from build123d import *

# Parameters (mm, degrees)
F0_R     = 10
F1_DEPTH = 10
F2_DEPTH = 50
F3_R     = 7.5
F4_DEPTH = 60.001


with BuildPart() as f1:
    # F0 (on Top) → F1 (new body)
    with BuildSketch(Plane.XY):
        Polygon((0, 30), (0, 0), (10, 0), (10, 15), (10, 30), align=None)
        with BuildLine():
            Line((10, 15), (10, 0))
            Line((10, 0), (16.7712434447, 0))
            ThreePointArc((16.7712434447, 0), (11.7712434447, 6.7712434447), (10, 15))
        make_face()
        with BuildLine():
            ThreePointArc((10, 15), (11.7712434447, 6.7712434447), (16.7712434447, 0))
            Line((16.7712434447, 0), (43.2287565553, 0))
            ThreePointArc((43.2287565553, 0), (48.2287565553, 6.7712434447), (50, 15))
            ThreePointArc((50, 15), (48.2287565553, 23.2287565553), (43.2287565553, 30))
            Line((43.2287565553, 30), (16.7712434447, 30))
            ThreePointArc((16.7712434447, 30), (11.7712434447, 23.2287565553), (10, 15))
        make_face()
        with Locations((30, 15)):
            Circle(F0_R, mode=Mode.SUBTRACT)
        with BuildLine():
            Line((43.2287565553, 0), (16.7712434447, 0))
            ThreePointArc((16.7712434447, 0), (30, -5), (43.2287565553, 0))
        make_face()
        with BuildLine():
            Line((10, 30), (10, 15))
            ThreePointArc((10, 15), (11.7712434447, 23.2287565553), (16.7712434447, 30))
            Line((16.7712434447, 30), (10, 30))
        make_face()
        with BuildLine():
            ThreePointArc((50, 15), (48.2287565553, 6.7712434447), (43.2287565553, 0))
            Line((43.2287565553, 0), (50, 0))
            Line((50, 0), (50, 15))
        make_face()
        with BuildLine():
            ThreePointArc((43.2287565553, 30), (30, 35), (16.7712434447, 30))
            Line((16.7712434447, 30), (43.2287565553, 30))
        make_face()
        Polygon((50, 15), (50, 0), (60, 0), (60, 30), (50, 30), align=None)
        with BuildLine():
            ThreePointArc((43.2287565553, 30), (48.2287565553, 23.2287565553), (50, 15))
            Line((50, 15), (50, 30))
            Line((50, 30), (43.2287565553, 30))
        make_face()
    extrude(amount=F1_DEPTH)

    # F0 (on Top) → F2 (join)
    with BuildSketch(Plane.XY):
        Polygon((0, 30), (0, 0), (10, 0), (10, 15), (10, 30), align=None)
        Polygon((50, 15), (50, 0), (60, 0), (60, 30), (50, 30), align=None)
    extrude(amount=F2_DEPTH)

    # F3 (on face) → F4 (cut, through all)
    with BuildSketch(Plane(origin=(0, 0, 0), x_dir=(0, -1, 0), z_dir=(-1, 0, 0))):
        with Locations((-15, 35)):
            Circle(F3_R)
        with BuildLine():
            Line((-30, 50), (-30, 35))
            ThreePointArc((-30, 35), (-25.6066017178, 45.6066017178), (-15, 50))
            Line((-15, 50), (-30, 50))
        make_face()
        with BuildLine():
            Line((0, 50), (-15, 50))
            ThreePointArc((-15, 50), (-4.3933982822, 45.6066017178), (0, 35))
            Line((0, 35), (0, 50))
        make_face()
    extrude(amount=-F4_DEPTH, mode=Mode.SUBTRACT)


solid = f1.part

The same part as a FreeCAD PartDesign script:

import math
import FreeCAD as App
import Part
import Sketcher

doc = App.newDocument("Part")
body = doc.addObject("PartDesign::Body", "Body")

sketch1 = body.newObject("Sketcher::SketchObject", "Sketch")
sketch1.AttachmentSupport = (doc.getObject("XY_Plane"), [""])
sketch1.MapMode = "FlatFace"
sketch1.addGeometry(Part.LineSegment(App.Vector(0, 30, 0), App.Vector(0, 0, 0)), False)
sketch1.addGeometry(Part.LineSegment(App.Vector(0, 0, 0), App.Vector(17, 0, 0)), False)
sketch1.addGeometry(Part.ArcOfCircle(Part.Circle(App.Vector(30, 15, 0), App.Vector(0, 0, 1), 20), math.radians(-131), math.radians(-49)), False)
sketch1.addGeometry(Part.LineSegment(App.Vector(43, 0, 0), App.Vector(60, 0, 0)), False)
sketch1.addGeometry(Part.LineSegment(App.Vector(60, 0, 0), App.Vector(60, 30, 0)), False)
sketch1.addGeometry(Part.LineSegment(App.Vector(60, 30, 0), App.Vector(43, 30, 0)), False)
sketch1.addGeometry(Part.ArcOfCircle(Part.Circle(App.Vector(30, 15, 0), App.Vector(0, 0, 1), 20), math.radians(49), math.radians(131)), False)
sketch1.addGeometry(Part.LineSegment(App.Vector(17, 30, 0), App.Vector(0, 30, 0)), False)
sketch1.addGeometry(Part.Circle(App.Vector(30, 15, 0), App.Vector(0, 0, 1), 10), False)
sketch1.addConstraint(Sketcher.Constraint("Coincident", 0, 2, 1, 1))
sketch1.addConstraint(Sketcher.Constraint("Coincident", 1, 2, 2, 1))
sketch1.addConstraint(Sketcher.Constraint("Coincident", 2, 2, 3, 1))
sketch1.addConstraint(Sketcher.Constraint("Coincident", 3, 2, 4, 1))
sketch1.addConstraint(Sketcher.Constraint("Coincident", 4, 2, 5, 1))
sketch1.addConstraint(Sketcher.Constraint("Coincident", 5, 2, 6, 1))
sketch1.addConstraint(Sketcher.Constraint("Coincident", 6, 2, 7, 1))
sketch1.addConstraint(Sketcher.Constraint("Coincident", 7, 2, 0, 1))
sketch1.addConstraint(Sketcher.Constraint("Vertical", 0))
sketch1.addConstraint(Sketcher.Constraint("Horizontal", 1))
sketch1.addConstraint(Sketcher.Constraint("Horizontal", 3))
sketch1.addConstraint(Sketcher.Constraint("Vertical", 4))
sketch1.addConstraint(Sketcher.Constraint("Horizontal", 5))
sketch1.addConstraint(Sketcher.Constraint("Horizontal", 7))
sketch1.addConstraint(Sketcher.Constraint("Coincident", 0, 2, -1, 1))
sketch1.addConstraint(Sketcher.Constraint("Coincident", 6, 3, 2, 3))
sketch1.addConstraint(Sketcher.Constraint("Coincident", 8, 3, 2, 3))
sketch1.addConstraint(Sketcher.Constraint("Equal", 2, 6))
sketch1.addConstraint(Sketcher.Constraint("PointOnObject", 2, 2, -1))
sketch1.addConstraint(Sketcher.Constraint("Horizontal", 5, 2, 6, 2))
sketch1.addConstraint(Sketcher.Constraint("Vertical", 2, 2, 5, 2))
sketch1.addConstraint(Sketcher.Constraint("Equal", 1, 3))
sketch1.addConstraint(Sketcher.Constraint("Diameter", 8, 20.0))
sketch1.addConstraint(Sketcher.Constraint("Radius", 2, 20.0))
sketch1.addConstraint(Sketcher.Constraint("DistanceY", 0, 2, 0, 1, 30.0))
sketch1.addConstraint(Sketcher.Constraint("DistanceX", -1, 1, 2, 3, 30.0))
pad1 = body.newObject("PartDesign::Pad", "Pad")
pad1.Profile = sketch1
pad1.Length = 10

sketch2 = body.newObject("Sketcher::SketchObject", "Sketch001")
sketch2.AttachmentSupport = (doc.getObject("XY_Plane"), [""])
sketch2.MapMode = "FlatFace"
sketch2.addGeometry(Part.LineSegment(App.Vector(0, 30, 0), App.Vector(0, 0, 0)), False)
sketch2.addGeometry(Part.LineSegment(App.Vector(0, 0, 0), App.Vector(10, 0, 0)), False)
sketch2.addGeometry(Part.LineSegment(App.Vector(10, 0, 0), App.Vector(10, 30, 0)), False)
sketch2.addGeometry(Part.LineSegment(App.Vector(10, 30, 0), App.Vector(0, 30, 0)), False)
sketch2.addGeometry(Part.LineSegment(App.Vector(50, 0, 0), App.Vector(60, 0, 0)), False)
sketch2.addGeometry(Part.LineSegment(App.Vector(60, 0, 0), App.Vector(60, 30, 0)), False)
sketch2.addGeometry(Part.LineSegment(App.Vector(60, 30, 0), App.Vector(50, 30, 0)), False)
sketch2.addGeometry(Part.LineSegment(App.Vector(50, 30, 0), App.Vector(50, 0, 0)), False)
sketch2.addConstraint(Sketcher.Constraint("Coincident", 0, 2, 1, 1))
sketch2.addConstraint(Sketcher.Constraint("Coincident", 1, 2, 2, 1))
sketch2.addConstraint(Sketcher.Constraint("Coincident", 2, 2, 3, 1))
sketch2.addConstraint(Sketcher.Constraint("Coincident", 3, 2, 0, 1))
sketch2.addConstraint(Sketcher.Constraint("Coincident", 4, 2, 5, 1))
sketch2.addConstraint(Sketcher.Constraint("Coincident", 5, 2, 6, 1))
sketch2.addConstraint(Sketcher.Constraint("Coincident", 6, 2, 7, 1))
sketch2.addConstraint(Sketcher.Constraint("Coincident", 7, 2, 4, 1))
sketch2.addConstraint(Sketcher.Constraint("Vertical", 0))
sketch2.addConstraint(Sketcher.Constraint("Horizontal", 1))
sketch2.addConstraint(Sketcher.Constraint("Vertical", 2))
sketch2.addConstraint(Sketcher.Constraint("Horizontal", 3))
sketch2.addConstraint(Sketcher.Constraint("Horizontal", 4))
sketch2.addConstraint(Sketcher.Constraint("Vertical", 5))
sketch2.addConstraint(Sketcher.Constraint("Horizontal", 6))
sketch2.addConstraint(Sketcher.Constraint("Vertical", 7))
sketch2.addConstraint(Sketcher.Constraint("Coincident", 0, 2, -1, 1))
sketch2.addConstraint(Sketcher.Constraint("PointOnObject", 4, 2, -1))
sketch2.addConstraint(Sketcher.Constraint("Horizontal", 3, 2, 5, 2))
sketch2.addConstraint(Sketcher.Constraint("Equal", 3, 4))
sketch2.addConstraint(Sketcher.Constraint("DistanceX", 1, 1, 1, 2, 10.0))
sketch2.addConstraint(Sketcher.Constraint("DistanceY", 0, 2, 0, 1, 30.0))
sketch2.addConstraint(Sketcher.Constraint("DistanceX", -1, 1, 4, 2, 60.0))
pad2 = body.newObject("PartDesign::Pad", "Pad001")
pad2.Profile = sketch2
pad2.Length = 50

sketch3 = body.newObject("Sketcher::SketchObject", "Sketch002")
sketch3.AttachmentSupport = (doc.getObject("YZ_Plane"), [""])
sketch3.MapMode = "FlatFace"
sketch3.addGeometry(Part.Circle(App.Vector(15, 35, 0), App.Vector(0, 0, 1), 8), False)
sketch3.addGeometry(Part.LineSegment(App.Vector(30, 50, 0), App.Vector(30, 35, 0)), False)
sketch3.addGeometry(Part.ArcOfCircle(Part.Circle(App.Vector(15, 35, 0), App.Vector(0, 0, 1), 15), math.radians(0), math.radians(90)), False)
sketch3.addGeometry(Part.LineSegment(App.Vector(15, 50, 0), App.Vector(30, 50, 0)), False)
sketch3.addGeometry(Part.LineSegment(App.Vector(0, 50, 0), App.Vector(15, 50, 0)), False)
sketch3.addGeometry(Part.ArcOfCircle(Part.Circle(App.Vector(15, 35, 0), App.Vector(0, 0, 1), 15), math.radians(90), math.radians(180)), False)
sketch3.addGeometry(Part.LineSegment(App.Vector(0, 35, 0), App.Vector(0, 50, 0)), False)
sketch3.addConstraint(Sketcher.Constraint("Tangent", 1, 2, 2, 1))
sketch3.addConstraint(Sketcher.Constraint("Tangent", 2, 2, 3, 1))
sketch3.addConstraint(Sketcher.Constraint("Coincident", 3, 2, 1, 1))
sketch3.addConstraint(Sketcher.Constraint("Tangent", 4, 2, 5, 1))
sketch3.addConstraint(Sketcher.Constraint("Tangent", 5, 2, 6, 1))
sketch3.addConstraint(Sketcher.Constraint("Coincident", 6, 2, 4, 1))
sketch3.addConstraint(Sketcher.Constraint("Vertical", 1))
sketch3.addConstraint(Sketcher.Constraint("Horizontal", 3))
sketch3.addConstraint(Sketcher.Constraint("Horizontal", 4))
sketch3.addConstraint(Sketcher.Constraint("Vertical", 6))
sketch3.addConstraint(Sketcher.Constraint("Coincident", 2, 3, 0, 3))
sketch3.addConstraint(Sketcher.Constraint("Coincident", 5, 3, 0, 3))
sketch3.addConstraint(Sketcher.Constraint("Equal", 2, 5))
sketch3.addConstraint(Sketcher.Constraint("PointOnObject", 5, 2, -2))
sketch3.addConstraint(Sketcher.Constraint("Diameter", 0, 15.0))
sketch3.addConstraint(Sketcher.Constraint("Radius", 2, 15.0))
sketch3.addConstraint(Sketcher.Constraint("DistanceY", -1, 1, 0, 3, 35.0))
pocket1 = body.newObject("PartDesign::Pocket", "Pocket")
pocket1.Profile = sketch3
pocket1.Type = "ThroughAll"
pocket1.Reversed = True

doc.recompute()
